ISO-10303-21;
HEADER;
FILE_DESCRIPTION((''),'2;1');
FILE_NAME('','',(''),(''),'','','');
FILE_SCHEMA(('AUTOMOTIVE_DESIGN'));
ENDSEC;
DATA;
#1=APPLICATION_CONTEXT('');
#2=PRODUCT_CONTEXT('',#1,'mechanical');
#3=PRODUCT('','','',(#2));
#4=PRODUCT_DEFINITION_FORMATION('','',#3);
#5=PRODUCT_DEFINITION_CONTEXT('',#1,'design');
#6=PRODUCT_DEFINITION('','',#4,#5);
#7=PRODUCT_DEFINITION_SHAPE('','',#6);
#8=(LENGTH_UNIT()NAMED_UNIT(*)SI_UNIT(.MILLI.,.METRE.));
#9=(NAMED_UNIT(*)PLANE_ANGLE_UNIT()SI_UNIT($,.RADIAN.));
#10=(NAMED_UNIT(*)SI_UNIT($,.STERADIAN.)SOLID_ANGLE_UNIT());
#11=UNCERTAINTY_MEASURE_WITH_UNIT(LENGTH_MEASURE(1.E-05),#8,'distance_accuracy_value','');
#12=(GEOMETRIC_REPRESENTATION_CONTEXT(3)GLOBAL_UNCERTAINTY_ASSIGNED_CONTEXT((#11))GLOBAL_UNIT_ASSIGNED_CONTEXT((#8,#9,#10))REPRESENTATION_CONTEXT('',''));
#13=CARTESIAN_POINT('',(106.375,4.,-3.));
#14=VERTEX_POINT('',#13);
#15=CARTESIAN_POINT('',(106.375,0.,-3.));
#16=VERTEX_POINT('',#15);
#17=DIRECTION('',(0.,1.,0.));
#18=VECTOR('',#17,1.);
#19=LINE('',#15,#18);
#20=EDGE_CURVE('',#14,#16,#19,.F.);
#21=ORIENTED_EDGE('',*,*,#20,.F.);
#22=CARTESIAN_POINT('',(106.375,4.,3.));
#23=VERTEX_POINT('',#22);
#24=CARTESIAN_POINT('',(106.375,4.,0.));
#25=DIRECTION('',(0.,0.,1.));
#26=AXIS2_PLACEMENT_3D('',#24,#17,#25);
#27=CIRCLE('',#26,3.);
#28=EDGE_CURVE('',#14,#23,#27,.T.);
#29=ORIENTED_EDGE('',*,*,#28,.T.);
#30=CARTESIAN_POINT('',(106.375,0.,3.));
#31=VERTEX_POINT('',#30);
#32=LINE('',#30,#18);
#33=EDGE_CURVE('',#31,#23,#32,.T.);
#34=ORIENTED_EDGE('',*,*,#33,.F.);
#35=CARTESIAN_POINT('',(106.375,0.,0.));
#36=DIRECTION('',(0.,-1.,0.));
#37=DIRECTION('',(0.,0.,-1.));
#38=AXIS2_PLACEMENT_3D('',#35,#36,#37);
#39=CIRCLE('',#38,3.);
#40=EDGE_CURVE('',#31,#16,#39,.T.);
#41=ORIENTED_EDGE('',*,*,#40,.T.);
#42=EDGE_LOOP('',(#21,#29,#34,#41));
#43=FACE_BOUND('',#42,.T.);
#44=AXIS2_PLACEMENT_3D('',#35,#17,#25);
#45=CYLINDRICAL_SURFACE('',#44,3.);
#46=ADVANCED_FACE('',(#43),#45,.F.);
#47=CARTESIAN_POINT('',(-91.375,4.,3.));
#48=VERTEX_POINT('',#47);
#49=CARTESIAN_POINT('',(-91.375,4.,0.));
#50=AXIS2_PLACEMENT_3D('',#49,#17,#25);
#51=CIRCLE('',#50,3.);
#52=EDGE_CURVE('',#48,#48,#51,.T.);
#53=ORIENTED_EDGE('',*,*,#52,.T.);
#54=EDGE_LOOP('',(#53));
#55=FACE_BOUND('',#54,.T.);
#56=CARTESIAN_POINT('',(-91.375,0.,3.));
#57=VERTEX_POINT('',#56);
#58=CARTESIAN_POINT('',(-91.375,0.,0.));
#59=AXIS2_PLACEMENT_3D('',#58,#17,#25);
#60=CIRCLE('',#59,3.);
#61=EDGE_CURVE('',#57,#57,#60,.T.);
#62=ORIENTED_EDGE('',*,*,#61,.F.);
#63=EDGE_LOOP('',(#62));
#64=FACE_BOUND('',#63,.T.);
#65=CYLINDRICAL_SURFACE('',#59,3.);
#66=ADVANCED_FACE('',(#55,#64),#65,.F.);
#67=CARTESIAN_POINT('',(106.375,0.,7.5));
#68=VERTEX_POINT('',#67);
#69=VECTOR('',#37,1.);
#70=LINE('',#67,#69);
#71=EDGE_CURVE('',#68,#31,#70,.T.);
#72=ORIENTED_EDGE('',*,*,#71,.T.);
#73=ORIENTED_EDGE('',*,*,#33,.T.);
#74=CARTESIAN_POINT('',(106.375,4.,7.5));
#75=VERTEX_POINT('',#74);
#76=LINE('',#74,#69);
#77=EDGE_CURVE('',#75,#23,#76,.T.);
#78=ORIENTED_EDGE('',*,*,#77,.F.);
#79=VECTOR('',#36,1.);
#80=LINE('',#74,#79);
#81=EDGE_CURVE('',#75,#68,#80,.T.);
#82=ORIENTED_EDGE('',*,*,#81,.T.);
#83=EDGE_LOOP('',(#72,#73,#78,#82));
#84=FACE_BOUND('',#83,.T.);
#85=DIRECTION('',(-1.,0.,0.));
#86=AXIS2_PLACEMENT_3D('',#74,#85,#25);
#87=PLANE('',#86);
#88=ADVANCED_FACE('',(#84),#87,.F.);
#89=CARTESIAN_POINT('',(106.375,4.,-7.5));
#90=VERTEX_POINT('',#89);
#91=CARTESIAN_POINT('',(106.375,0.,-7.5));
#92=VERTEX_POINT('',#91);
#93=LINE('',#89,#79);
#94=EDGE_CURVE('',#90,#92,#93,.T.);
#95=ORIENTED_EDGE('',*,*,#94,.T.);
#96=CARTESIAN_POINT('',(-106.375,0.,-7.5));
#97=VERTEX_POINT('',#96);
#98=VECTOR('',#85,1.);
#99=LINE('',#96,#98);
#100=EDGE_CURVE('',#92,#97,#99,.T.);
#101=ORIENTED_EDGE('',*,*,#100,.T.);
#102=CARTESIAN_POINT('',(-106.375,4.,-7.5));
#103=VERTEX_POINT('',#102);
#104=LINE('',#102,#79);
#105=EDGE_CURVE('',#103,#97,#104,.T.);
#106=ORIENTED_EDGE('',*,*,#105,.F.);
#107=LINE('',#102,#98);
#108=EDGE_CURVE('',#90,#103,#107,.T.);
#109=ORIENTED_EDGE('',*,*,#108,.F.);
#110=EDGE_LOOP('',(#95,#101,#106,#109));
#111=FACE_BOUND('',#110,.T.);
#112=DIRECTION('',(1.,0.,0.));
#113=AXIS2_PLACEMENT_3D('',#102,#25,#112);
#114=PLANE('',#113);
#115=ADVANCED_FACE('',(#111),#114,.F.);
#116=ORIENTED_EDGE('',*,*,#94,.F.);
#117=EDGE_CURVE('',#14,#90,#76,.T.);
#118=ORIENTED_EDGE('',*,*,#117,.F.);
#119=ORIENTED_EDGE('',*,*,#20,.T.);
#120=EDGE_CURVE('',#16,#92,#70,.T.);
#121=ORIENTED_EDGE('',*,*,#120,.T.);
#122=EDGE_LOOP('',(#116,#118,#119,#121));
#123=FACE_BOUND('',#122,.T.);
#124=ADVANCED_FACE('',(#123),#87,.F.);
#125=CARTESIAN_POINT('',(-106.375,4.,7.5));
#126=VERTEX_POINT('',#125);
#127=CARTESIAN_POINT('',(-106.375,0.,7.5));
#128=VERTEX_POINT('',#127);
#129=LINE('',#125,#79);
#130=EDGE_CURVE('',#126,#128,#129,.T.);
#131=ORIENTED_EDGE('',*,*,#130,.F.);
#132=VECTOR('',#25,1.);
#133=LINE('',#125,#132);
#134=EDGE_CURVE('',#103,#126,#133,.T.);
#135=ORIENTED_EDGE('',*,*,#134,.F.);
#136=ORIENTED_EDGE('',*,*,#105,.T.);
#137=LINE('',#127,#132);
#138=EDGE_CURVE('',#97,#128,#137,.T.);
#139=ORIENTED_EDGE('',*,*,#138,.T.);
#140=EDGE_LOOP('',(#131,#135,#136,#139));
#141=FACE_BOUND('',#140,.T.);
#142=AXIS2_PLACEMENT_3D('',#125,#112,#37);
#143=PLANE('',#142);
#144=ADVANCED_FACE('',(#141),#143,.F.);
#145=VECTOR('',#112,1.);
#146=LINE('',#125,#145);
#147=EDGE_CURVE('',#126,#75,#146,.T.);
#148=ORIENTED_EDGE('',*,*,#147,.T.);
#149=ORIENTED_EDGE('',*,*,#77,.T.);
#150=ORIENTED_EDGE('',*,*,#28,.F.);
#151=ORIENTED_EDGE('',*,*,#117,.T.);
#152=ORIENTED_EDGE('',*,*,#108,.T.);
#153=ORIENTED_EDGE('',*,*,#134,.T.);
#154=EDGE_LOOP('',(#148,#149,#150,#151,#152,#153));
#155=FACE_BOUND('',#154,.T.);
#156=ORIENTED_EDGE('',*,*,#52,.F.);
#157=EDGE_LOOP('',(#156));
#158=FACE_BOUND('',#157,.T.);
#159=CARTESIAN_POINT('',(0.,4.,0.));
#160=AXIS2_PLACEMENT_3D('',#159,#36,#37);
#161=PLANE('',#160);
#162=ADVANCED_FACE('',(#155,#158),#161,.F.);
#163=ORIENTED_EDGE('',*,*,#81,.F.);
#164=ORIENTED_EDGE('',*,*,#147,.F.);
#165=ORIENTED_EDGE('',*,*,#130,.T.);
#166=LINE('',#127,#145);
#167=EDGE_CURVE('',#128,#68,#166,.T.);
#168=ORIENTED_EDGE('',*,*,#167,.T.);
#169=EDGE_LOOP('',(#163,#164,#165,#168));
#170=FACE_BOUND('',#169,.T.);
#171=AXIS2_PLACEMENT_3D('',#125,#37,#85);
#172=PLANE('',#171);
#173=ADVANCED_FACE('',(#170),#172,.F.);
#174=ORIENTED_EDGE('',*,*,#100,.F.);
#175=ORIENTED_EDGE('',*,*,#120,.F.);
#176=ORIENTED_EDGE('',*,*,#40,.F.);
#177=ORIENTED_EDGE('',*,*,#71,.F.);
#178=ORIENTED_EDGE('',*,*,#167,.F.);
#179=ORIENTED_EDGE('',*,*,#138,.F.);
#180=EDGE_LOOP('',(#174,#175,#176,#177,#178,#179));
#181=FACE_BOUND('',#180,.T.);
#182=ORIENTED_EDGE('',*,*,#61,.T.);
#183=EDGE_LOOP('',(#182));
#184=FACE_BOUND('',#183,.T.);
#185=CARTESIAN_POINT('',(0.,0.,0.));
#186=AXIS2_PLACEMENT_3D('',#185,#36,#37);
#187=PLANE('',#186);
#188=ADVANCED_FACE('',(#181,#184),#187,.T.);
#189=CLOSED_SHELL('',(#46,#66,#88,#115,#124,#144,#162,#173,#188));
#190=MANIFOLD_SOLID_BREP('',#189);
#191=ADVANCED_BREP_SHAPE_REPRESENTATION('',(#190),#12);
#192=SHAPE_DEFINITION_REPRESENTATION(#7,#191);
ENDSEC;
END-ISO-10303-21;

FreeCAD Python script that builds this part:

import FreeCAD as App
import Part
import Sketcher
from FreeCAD import Vector
Q = App.Units.Quantity


def add_polygon(sketch, points):
    """Adds a closed chain of lines whose ends are joined by coincident constraints."""
    first, n = sketch.GeometryCount, len(points)
    for a, b in zip(points, points[1:] + points[:1]):
        sketch.addGeometry(Part.LineSegment(App.Vector(*a, 0), App.Vector(*b, 0)), False)
    for i in range(n):
        sketch.addConstraint(Sketcher.Constraint("Coincident", first + i, 2, first + (i + 1) % n, 1))

doc = App.newDocument("Part")
body = doc.addObject("PartDesign::Body", "Body")

sketch1 = doc.addObject("Sketcher::SketchObject", "Sketch")
body.addObject(sketch1)
sketch1.AttachmentSupport = (doc.XZ_Plane, [""])
sketch1.MapMode = "FlatFace"
add_polygon(sketch1, [(-106.375, -7.5), (-106.375, 7.5), (106.375, 7.5), (106.375, -7.5)])
sketch1.addConstraint(Sketcher.Constraint("Vertical", 0))
sketch1.addConstraint(Sketcher.Constraint("Horizontal", 1))
sketch1.addConstraint(Sketcher.Constraint("Vertical", 2))
sketch1.addConstraint(Sketcher.Constraint("Horizontal", 3))
sketch1.addConstraint(Sketcher.Constraint("Symmetric", 0, 2, 2, 2, -1, 1))
sketch1.addConstraint(Sketcher.Constraint("DistanceY", 0, 1, 0, 2, Q("15 mm")))
sketch1.addConstraint(Sketcher.Constraint("DistanceX", 1, 1, 1, 2, Q("212.75 mm")))
pad1 = doc.addObject("PartDesign::Pad", "Pad")
body.addObject(pad1)
pad1.Profile = sketch1
pad1.Length = 4
pad1.Reversed = True

sketch2 = doc.addObject("Sketcher::SketchObject", "Sketch001")
body.addObject(sketch2)
sketch2.AttachmentSupport = (doc.XZ_Plane, [""])
sketch2.MapMode = "FlatFace"
sketch2.AttachmentOffset = App.Placement(Vector(0, 0, -4), App.Rotation())
sketch2.addGeometry(Part.Circle(Vector(-91.375, 0, 0), Vector(0, 0, 1), 3), False)
sketch2.addGeometry(Part.Circle(Vector(106.375, 0, 0), Vector(0, 0, 1), 3), False)
sketch2.addConstraint(Sketcher.Constraint("Equal", 0, 1))
sketch2.addConstraint(Sketcher.Constraint("PointOnObject", 0, 3, -1))
sketch2.addConstraint(Sketcher.Constraint("PointOnObject", 1, 3, -1))
sketch2.addConstraint(Sketcher.Constraint("Diameter", 0, Q("6 mm")))
sketch2.addConstraint(Sketcher.Constraint("DistanceX", 0, 3, 1, 3, Q("197.75 mm")))
sketch2.addConstraint(Sketcher.Constraint("DistanceX", 0, 3, -1, 1, Q("91.375 mm")))
pocket1 = doc.addObject("PartDesign::Pocket", "Pocket")
body.addObject(pocket1)
pocket1.Profile = sketch2
pocket1.Type = "ThroughAll"
pocket1.Reversed = True

doc.recompute()
